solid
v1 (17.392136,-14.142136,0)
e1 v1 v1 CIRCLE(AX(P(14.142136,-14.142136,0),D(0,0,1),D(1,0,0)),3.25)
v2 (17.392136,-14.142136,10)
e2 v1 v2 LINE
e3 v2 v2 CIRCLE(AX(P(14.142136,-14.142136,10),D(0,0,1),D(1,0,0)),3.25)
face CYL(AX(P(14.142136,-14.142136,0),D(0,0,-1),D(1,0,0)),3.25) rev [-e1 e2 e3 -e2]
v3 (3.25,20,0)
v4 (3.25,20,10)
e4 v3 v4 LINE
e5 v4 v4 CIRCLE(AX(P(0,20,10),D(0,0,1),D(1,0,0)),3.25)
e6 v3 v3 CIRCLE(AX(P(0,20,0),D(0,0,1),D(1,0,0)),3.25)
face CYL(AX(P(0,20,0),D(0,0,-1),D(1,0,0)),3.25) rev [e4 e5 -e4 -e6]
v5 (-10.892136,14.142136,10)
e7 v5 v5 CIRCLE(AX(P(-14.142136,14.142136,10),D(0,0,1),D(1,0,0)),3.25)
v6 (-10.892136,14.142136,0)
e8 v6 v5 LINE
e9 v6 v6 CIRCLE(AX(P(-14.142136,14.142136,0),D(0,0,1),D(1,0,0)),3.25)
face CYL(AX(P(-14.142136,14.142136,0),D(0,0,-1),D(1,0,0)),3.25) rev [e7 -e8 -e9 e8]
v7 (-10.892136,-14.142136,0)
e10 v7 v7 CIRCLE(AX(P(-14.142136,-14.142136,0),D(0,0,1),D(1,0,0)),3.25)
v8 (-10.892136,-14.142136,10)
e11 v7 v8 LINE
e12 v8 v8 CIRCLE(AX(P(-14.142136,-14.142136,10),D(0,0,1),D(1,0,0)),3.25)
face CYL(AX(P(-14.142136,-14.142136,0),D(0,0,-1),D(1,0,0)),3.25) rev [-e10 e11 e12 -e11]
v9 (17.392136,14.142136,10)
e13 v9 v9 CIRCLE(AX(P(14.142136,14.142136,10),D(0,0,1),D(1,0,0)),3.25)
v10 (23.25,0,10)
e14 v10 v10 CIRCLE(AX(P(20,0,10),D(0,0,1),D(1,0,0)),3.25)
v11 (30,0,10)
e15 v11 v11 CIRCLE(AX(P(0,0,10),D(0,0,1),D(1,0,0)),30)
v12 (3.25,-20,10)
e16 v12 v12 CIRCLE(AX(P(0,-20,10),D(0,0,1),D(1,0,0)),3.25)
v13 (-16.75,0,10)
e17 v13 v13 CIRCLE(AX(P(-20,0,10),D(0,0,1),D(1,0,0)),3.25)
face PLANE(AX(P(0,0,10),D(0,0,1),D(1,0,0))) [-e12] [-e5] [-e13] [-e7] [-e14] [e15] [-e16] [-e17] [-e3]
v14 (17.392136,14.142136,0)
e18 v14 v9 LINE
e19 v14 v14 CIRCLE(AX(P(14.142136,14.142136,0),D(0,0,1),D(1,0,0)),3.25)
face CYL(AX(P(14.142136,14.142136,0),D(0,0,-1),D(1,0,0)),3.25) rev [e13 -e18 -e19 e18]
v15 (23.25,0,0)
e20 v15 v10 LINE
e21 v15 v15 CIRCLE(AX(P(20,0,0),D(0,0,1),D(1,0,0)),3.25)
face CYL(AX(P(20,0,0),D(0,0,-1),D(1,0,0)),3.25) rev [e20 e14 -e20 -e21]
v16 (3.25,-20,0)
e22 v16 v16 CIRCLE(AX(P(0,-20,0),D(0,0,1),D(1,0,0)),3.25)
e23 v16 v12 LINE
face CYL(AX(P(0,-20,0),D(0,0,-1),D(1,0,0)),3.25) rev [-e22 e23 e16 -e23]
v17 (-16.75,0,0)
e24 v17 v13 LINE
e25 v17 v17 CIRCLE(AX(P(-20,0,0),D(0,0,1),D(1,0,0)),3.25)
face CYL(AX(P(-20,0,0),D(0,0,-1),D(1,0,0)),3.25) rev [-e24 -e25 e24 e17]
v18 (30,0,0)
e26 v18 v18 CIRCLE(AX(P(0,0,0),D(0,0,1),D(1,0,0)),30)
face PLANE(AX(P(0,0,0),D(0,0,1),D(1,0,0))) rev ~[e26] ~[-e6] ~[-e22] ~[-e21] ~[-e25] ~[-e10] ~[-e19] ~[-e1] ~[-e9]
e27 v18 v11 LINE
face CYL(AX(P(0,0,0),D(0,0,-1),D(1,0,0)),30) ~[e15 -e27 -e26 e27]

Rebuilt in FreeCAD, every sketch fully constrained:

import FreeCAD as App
import Part
import Sketcher

V = App.Vector
Q = App.Units.Quantity

doc = App.newDocument("Part")
params = doc.addObject("Spreadsheet::Sheet", "Params")
for row, (alias, value) in enumerate([
    ("sketch1_diameter", "60 mm"),
    ("sketch1_diameter2", "6.5 mm"),
    ("pad1_length", "10 mm"),
], start=1):
    params.set(f"A{row}", alias)
    params.set(f"B{row}", "=" + value)
    params.setAlias(f"B{row}", alias)

body = doc.addObject("PartDesign::Body", "Body")

sketch1 = doc.addObject("Sketcher::SketchObject", "Sketch")
body.addObject(sketch1)
sketch1.AttachmentSupport = (doc.XY_Plane, [""])
sketch1.MapMode = "FlatFace"
sketch1.addGeometry([
    Part.Circle(V(0, 0, 0), V(0, 0, 1), 30),
    Part.Circle(V(-14.142136, -14.142136, 0), V(0, 0, 1), 3.25),
    Part.Circle(V(0, -20, 0), V(0, 0, 1), 3.25),
    Part.Circle(V(14.142136, -14.142136, 0), V(0, 0, 1), 3.25),
    Part.Circle(V(-20, 0, 0), V(0, 0, 1), 3.25),
    Part.Circle(V(-14.142136, 14.142136, 0), V(0, 0, 1), 3.25),
    Part.Circle(V(20, 0, 0), V(0, 0, 1), 3.25),
    Part.Circle(V(0, 20, 0), V(0, 0, 1), 3.25),
    Part.Circle(V(14.142136, 14.142136, 0), V(0, 0, 1), 3.25),
], False)
sketch1.addConstraint([
    Sketcher.Constraint("Coincident", 0, 3, -1, 1),
    Sketcher.Constraint("Equal", 1, 2),
    Sketcher.Constraint("Equal", 2, 3),
    Sketcher.Constraint("Equal", 3, 4),
    Sketcher.Constraint("Equal", 4, 5),
    Sketcher.Constraint("Equal", 5, 6),
    Sketcher.Constraint("Equal", 6, 7),
    Sketcher.Constraint("Equal", 7, 8),
    Sketcher.Constraint("Symmetric", 3, 3, 5, 3, -1, 1),
    Sketcher.Constraint("Symmetric", 4, 3, 6, 3, -1, 1),
    Sketcher.Constraint("Symmetric", 2, 3, 7, 3, -1, 1),
    Sketcher.Constraint("Symmetric", 1, 3, 8, 3, -1, 1),
    Sketcher.Constraint("Symmetric", 1, 3, 3, 3, -2),
    Sketcher.Constraint("PointOnObject", 2, 3, -2),
    Sketcher.Constraint("PointOnObject", 4, 3, -1),
    Sketcher.Constraint("Diameter", 0, Q("60 mm")),
    Sketcher.Constraint("Diameter", 1, Q("6.5 mm")),
    Sketcher.Constraint("DistanceY", 2, 3, -1, 1, Q("20 mm")),
    Sketcher.Constraint("DistanceX", 4, 3, -1, 1, Q("20 mm")),
    Sketcher.Constraint("DistanceX", 1, 3, -1, 1, Q("14.142136 mm")),
    Sketcher.Constraint("DistanceY", 1, 3, -1, 1, Q("14.142136 mm")),
])
sketch1.setExpression("Constraints[15]", "Params.sketch1_diameter")
sketch1.setExpression("Constraints[16]", "Params.sketch1_diameter2")
pad1 = doc.addObject("PartDesign::Pad", "Pad")
body.addObject(pad1)
pad1.Profile = sketch1
pad1.setExpression("Length", "Params.pad1_length")

doc.recompute()
